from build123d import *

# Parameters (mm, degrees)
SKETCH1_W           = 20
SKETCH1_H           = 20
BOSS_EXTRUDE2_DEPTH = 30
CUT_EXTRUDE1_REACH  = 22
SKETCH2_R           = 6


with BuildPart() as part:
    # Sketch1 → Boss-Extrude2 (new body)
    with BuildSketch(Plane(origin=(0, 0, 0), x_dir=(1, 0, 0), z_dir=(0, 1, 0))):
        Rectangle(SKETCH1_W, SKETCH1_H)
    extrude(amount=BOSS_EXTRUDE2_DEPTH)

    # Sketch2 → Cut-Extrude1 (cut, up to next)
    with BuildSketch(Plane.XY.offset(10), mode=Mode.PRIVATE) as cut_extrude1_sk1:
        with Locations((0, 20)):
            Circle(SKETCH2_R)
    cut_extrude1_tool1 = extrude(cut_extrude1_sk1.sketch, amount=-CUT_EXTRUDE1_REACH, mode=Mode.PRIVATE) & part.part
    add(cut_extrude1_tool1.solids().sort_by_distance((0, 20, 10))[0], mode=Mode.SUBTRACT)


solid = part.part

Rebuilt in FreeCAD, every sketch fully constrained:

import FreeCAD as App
import Part
import Sketcher

V = App.Vector

doc = App.newDocument("Part")
body = doc.addObject("PartDesign::Body", "Body")

# Sketch on XZ plane
sketch1 = doc.addObject("Sketcher::SketchObject", "Sketch")
body.addObject(sketch1)
sketch1.AttachmentSupport = (doc.XZ_Plane, [""])
sketch1.MapMode = "FlatFace"
sketch1.addGeometry([
    Part.LineSegment(V(-10, -10, 0), V(-10, 10, 0)),
    Part.LineSegment(V(-10, 10, 0), V(10, 10, 0)),
    Part.LineSegment(V(10, 10, 0), V(10, -10, 0)),
    Part.LineSegment(V(10, -10, 0), V(-10, -10, 0)),
], False)
sketch1.addConstraint([
    Sketcher.Constraint("Coincident", 0, 2, 1, 1),
    Sketcher.Constraint("Coincident", 1, 2, 2, 1),
    Sketcher.Constraint("Coincident", 2, 2, 3, 1),
    Sketcher.Constraint("Coincident", 3, 2, 0, 1),
    Sketcher.Constraint("Vertical", 0),
    Sketcher.Constraint("Horizontal", 1),
    Sketcher.Constraint("Vertical", 2),
    Sketcher.Constraint("Horizontal", 3),
    Sketcher.Constraint("Symmetric", 0, 2, 2, 2, -1, 1),
    Sketcher.Constraint("Equal", 3, 0),
    Sketcher.Constraint("DistanceX", 1, 1, 1, 2, 20.0),
])
pad1 = doc.addObject("PartDesign::Pad", "Pad")
body.addObject(pad1)
pad1.Profile = sketch1
pad1.Length = 30
pad1.Reversed = True

# Sketch on XY plane
sketch2 = doc.addObject("Sketcher::SketchObject", "Sketch001")
body.addObject(sketch2)
sketch2.AttachmentSupport = (doc.XY_Plane, [""])
sketch2.MapMode = "FlatFace"
sketch2.AttachmentOffset = App.Placement(V(0, 0, 10), App.Rotation())
sketch2.addGeometry(Part.Circle(V(0, 20, 0), V(0, 0, 1), 6), False)
sketch2.addConstraint([
    Sketcher.Constraint("PointOnObject", 0, 3, -2),
    Sketcher.Constraint("Diameter", 0, 12.0),
    Sketcher.Constraint("DistanceY", -1, 1, 0, 3, 20.0),
])
pocket1 = doc.addObject("PartDesign::Pocket", "Pocket")
body.addObject(pocket1)
pocket1.Profile = sketch2
pocket1.Type = "UpToFirst"

doc.recompute()
